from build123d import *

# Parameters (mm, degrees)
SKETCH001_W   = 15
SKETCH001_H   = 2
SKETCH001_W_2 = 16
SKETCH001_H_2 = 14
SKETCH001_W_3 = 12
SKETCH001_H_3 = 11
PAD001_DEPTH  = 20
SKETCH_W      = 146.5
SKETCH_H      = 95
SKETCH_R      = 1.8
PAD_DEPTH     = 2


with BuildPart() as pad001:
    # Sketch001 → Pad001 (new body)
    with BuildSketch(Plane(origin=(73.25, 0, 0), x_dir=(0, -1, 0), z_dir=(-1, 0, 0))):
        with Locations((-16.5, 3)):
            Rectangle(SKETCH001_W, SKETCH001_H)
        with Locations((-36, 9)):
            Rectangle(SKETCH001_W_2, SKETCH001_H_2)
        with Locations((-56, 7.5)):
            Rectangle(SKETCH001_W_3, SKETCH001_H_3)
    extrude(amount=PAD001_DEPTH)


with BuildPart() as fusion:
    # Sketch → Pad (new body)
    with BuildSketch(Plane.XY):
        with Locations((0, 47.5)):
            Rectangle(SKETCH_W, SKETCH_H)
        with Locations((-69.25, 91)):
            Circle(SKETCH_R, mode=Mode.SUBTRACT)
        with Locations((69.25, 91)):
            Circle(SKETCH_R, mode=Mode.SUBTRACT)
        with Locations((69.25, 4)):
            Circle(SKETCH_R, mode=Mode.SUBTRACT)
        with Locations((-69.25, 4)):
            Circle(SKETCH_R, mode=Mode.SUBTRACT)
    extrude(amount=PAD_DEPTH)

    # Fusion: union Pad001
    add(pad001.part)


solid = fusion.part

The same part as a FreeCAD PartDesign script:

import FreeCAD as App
import Part
import Sketcher
from FreeCAD import Vector


def add_polygon(sketch, points):
    """Adds a closed chain of lines whose ends are joined by coincident constraints."""
    first, n = sketch.GeometryCount, len(points)
    for a, b in zip(points, points[1:] + points[:1]):
        sketch.addGeometry(Part.LineSegment(App.Vector(*a, 0), App.Vector(*b, 0)), False)
    for i in range(n):
        sketch.addConstraint(Sketcher.Constraint("Coincident", first + i, 2, first + (i + 1) % n, 1))

doc = App.newDocument("Part")
body = doc.addObject("PartDesign::Body", "Body")
body.AllowCompound = True

# Sketch on YZ plane
sketch1 = body.newObject("Sketcher::SketchObject", "Sketch")
sketch1.AttachmentSupport = (doc.getObject("YZ_Plane"), [""])
sketch1.MapMode = "FlatFace"
sketch1.AttachmentOffset = App.Placement(Vector(0, 0, 73.25), App.Rotation())
add_polygon(sketch1, [(24, 4), (24, 2), (9, 2), (9, 4)])  # lines 0-3
add_polygon(sketch1, [(44, 16), (44, 2), (28, 2), (28, 16)])  # lines 4-7
add_polygon(sketch1, [(62, 13), (62, 2), (50, 2), (50, 13)])  # lines 8-11
sketch1.addConstraint(Sketcher.Constraint("Vertical", 0))
sketch1.addConstraint(Sketcher.Constraint("Horizontal", 1))
sketch1.addConstraint(Sketcher.Constraint("Vertical", 2))
sketch1.addConstraint(Sketcher.Constraint("Horizontal", 3))
sketch1.addConstraint(Sketcher.Constraint("Vertical", 4))
sketch1.addConstraint(Sketcher.Constraint("Horizontal", 5))
sketch1.addConstraint(Sketcher.Constraint("Vertical", 6))
sketch1.addConstraint(Sketcher.Constraint("Horizontal", 7))
sketch1.addConstraint(Sketcher.Constraint("Vertical", 8))
sketch1.addConstraint(Sketcher.Constraint("Horizontal", 9))
sketch1.addConstraint(Sketcher.Constraint("Vertical", 10))
sketch1.addConstraint(Sketcher.Constraint("Horizontal", 11))
sketch1.addConstraint(Sketcher.Constraint("Horizontal", 1, 2, 4, 2))
sketch1.addConstraint(Sketcher.Constraint("Horizontal", 5, 2, 8, 2))
sketch1.addConstraint(Sketcher.Constraint("DistanceX", 1, 2, 1, 1, 15.0))
sketch1.addConstraint(Sketcher.Constraint("DistanceX", 5, 2, 5, 1, 16.0))
sketch1.addConstraint(Sketcher.Constraint("DistanceX", 9, 2, 9, 1, 12.0))
sketch1.addConstraint(Sketcher.Constraint("DistanceY", 0, 2, 0, 1, 2.0))
sketch1.addConstraint(Sketcher.Constraint("DistanceY", 4, 2, 4, 1, 14.0))
sketch1.addConstraint(Sketcher.Constraint("DistanceY", 8, 2, 8, 1, 11.0))
sketch1.addConstraint(Sketcher.Constraint("DistanceX", -1, 1, 0, 2, 24.0))
sketch1.addConstraint(Sketcher.Constraint("DistanceY", -1, 1, 0, 2, 2.0))
sketch1.addConstraint(Sketcher.Constraint("DistanceX", -1, 1, 4, 2, 44.0))
sketch1.addConstraint(Sketcher.Constraint("DistanceX", -1, 1, 8, 2, 62.0))
pad1 = body.newObject("PartDesign::Pad", "Pad")
pad1.Profile = sketch1
pad1.Length = 20
pad1.Reversed = True
body2 = doc.addObject("PartDesign::Body", "Body001")

# Sketch on XY plane
sketch2 = body2.newObject("Sketcher::SketchObject", "Sketch001")
sketch2.AttachmentSupport = (doc.getObject("XY_Plane001"), [""])
sketch2.MapMode = "FlatFace"
add_polygon(sketch2, [(-73.2, 95), (-73.2, 0), (73.2, 0), (73.2, 95)])  # lines 0-3
sketch2.addGeometry(Part.Circle(Vector(-69.2, 4, 0), Vector(0, 0, 1), 1.8), False)  # 4
sketch2.addGeometry(Part.Circle(Vector(69.2, 4, 0), Vector(0, 0, 1), 1.8), False)  # 5
sketch2.addGeometry(Part.Circle(Vector(-69.2, 91, 0), Vector(0, 0, 1), 1.8), False)  # 6
sketch2.addGeometry(Part.Circle(Vector(69.2, 91, 0), Vector(0, 0, 1), 1.8), False)  # 7
sketch2.addConstraint(Sketcher.Constraint("Vertical", 0))
sketch2.addConstraint(Sketcher.Constraint("Horizontal", 1))
sketch2.addConstraint(Sketcher.Constraint("Vertical", 2))
sketch2.addConstraint(Sketcher.Constraint("Horizontal", 3))
sketch2.addConstraint(Sketcher.Constraint("Equal", 4, 5))
sketch2.addConstraint(Sketcher.Constraint("Equal", 5, 6))
sketch2.addConstraint(Sketcher.Constraint("Equal", 6, 7))
sketch2.addConstraint(Sketcher.Constraint("Symmetric", 0, 2, 1, 2, -1, 1))
sketch2.addConstraint(Sketcher.Constraint("Symmetric", 4, 3, 5, 3, -2))
sketch2.addConstraint(Sketcher.Constraint("Symmetric", 6, 3, 7, 3, -2))
sketch2.addConstraint(Sketcher.Constraint("Vertical", 4, 3, 6, 3))
sketch2.addConstraint(Sketcher.Constraint("Diameter", 4, 3.6))
sketch2.addConstraint(Sketcher.Constraint("DistanceY", 0, 2, 0, 1, 95.0))
sketch2.addConstraint(Sketcher.Constraint("DistanceX", 1, 1, 1, 2, 146.5))
sketch2.addConstraint(Sketcher.Constraint("DistanceY", -1, 1, 4, 3, 4.0))
sketch2.addConstraint(Sketcher.Constraint("DistanceY", -1, 1, 6, 3, 91.0))
sketch2.addConstraint(Sketcher.Constraint("DistanceX", 0, 2, 4, 3, 4.0))
pad2 = body2.newObject("PartDesign::Pad", "Pad001")
pad2.Profile = sketch2
pad2.Length = 2
doc.recompute()

boolean = body2.newObject("PartDesign::Boolean", "Boolean")
boolean.Type = "Fuse"
boolean.addObjects([body])

doc.recompute()
